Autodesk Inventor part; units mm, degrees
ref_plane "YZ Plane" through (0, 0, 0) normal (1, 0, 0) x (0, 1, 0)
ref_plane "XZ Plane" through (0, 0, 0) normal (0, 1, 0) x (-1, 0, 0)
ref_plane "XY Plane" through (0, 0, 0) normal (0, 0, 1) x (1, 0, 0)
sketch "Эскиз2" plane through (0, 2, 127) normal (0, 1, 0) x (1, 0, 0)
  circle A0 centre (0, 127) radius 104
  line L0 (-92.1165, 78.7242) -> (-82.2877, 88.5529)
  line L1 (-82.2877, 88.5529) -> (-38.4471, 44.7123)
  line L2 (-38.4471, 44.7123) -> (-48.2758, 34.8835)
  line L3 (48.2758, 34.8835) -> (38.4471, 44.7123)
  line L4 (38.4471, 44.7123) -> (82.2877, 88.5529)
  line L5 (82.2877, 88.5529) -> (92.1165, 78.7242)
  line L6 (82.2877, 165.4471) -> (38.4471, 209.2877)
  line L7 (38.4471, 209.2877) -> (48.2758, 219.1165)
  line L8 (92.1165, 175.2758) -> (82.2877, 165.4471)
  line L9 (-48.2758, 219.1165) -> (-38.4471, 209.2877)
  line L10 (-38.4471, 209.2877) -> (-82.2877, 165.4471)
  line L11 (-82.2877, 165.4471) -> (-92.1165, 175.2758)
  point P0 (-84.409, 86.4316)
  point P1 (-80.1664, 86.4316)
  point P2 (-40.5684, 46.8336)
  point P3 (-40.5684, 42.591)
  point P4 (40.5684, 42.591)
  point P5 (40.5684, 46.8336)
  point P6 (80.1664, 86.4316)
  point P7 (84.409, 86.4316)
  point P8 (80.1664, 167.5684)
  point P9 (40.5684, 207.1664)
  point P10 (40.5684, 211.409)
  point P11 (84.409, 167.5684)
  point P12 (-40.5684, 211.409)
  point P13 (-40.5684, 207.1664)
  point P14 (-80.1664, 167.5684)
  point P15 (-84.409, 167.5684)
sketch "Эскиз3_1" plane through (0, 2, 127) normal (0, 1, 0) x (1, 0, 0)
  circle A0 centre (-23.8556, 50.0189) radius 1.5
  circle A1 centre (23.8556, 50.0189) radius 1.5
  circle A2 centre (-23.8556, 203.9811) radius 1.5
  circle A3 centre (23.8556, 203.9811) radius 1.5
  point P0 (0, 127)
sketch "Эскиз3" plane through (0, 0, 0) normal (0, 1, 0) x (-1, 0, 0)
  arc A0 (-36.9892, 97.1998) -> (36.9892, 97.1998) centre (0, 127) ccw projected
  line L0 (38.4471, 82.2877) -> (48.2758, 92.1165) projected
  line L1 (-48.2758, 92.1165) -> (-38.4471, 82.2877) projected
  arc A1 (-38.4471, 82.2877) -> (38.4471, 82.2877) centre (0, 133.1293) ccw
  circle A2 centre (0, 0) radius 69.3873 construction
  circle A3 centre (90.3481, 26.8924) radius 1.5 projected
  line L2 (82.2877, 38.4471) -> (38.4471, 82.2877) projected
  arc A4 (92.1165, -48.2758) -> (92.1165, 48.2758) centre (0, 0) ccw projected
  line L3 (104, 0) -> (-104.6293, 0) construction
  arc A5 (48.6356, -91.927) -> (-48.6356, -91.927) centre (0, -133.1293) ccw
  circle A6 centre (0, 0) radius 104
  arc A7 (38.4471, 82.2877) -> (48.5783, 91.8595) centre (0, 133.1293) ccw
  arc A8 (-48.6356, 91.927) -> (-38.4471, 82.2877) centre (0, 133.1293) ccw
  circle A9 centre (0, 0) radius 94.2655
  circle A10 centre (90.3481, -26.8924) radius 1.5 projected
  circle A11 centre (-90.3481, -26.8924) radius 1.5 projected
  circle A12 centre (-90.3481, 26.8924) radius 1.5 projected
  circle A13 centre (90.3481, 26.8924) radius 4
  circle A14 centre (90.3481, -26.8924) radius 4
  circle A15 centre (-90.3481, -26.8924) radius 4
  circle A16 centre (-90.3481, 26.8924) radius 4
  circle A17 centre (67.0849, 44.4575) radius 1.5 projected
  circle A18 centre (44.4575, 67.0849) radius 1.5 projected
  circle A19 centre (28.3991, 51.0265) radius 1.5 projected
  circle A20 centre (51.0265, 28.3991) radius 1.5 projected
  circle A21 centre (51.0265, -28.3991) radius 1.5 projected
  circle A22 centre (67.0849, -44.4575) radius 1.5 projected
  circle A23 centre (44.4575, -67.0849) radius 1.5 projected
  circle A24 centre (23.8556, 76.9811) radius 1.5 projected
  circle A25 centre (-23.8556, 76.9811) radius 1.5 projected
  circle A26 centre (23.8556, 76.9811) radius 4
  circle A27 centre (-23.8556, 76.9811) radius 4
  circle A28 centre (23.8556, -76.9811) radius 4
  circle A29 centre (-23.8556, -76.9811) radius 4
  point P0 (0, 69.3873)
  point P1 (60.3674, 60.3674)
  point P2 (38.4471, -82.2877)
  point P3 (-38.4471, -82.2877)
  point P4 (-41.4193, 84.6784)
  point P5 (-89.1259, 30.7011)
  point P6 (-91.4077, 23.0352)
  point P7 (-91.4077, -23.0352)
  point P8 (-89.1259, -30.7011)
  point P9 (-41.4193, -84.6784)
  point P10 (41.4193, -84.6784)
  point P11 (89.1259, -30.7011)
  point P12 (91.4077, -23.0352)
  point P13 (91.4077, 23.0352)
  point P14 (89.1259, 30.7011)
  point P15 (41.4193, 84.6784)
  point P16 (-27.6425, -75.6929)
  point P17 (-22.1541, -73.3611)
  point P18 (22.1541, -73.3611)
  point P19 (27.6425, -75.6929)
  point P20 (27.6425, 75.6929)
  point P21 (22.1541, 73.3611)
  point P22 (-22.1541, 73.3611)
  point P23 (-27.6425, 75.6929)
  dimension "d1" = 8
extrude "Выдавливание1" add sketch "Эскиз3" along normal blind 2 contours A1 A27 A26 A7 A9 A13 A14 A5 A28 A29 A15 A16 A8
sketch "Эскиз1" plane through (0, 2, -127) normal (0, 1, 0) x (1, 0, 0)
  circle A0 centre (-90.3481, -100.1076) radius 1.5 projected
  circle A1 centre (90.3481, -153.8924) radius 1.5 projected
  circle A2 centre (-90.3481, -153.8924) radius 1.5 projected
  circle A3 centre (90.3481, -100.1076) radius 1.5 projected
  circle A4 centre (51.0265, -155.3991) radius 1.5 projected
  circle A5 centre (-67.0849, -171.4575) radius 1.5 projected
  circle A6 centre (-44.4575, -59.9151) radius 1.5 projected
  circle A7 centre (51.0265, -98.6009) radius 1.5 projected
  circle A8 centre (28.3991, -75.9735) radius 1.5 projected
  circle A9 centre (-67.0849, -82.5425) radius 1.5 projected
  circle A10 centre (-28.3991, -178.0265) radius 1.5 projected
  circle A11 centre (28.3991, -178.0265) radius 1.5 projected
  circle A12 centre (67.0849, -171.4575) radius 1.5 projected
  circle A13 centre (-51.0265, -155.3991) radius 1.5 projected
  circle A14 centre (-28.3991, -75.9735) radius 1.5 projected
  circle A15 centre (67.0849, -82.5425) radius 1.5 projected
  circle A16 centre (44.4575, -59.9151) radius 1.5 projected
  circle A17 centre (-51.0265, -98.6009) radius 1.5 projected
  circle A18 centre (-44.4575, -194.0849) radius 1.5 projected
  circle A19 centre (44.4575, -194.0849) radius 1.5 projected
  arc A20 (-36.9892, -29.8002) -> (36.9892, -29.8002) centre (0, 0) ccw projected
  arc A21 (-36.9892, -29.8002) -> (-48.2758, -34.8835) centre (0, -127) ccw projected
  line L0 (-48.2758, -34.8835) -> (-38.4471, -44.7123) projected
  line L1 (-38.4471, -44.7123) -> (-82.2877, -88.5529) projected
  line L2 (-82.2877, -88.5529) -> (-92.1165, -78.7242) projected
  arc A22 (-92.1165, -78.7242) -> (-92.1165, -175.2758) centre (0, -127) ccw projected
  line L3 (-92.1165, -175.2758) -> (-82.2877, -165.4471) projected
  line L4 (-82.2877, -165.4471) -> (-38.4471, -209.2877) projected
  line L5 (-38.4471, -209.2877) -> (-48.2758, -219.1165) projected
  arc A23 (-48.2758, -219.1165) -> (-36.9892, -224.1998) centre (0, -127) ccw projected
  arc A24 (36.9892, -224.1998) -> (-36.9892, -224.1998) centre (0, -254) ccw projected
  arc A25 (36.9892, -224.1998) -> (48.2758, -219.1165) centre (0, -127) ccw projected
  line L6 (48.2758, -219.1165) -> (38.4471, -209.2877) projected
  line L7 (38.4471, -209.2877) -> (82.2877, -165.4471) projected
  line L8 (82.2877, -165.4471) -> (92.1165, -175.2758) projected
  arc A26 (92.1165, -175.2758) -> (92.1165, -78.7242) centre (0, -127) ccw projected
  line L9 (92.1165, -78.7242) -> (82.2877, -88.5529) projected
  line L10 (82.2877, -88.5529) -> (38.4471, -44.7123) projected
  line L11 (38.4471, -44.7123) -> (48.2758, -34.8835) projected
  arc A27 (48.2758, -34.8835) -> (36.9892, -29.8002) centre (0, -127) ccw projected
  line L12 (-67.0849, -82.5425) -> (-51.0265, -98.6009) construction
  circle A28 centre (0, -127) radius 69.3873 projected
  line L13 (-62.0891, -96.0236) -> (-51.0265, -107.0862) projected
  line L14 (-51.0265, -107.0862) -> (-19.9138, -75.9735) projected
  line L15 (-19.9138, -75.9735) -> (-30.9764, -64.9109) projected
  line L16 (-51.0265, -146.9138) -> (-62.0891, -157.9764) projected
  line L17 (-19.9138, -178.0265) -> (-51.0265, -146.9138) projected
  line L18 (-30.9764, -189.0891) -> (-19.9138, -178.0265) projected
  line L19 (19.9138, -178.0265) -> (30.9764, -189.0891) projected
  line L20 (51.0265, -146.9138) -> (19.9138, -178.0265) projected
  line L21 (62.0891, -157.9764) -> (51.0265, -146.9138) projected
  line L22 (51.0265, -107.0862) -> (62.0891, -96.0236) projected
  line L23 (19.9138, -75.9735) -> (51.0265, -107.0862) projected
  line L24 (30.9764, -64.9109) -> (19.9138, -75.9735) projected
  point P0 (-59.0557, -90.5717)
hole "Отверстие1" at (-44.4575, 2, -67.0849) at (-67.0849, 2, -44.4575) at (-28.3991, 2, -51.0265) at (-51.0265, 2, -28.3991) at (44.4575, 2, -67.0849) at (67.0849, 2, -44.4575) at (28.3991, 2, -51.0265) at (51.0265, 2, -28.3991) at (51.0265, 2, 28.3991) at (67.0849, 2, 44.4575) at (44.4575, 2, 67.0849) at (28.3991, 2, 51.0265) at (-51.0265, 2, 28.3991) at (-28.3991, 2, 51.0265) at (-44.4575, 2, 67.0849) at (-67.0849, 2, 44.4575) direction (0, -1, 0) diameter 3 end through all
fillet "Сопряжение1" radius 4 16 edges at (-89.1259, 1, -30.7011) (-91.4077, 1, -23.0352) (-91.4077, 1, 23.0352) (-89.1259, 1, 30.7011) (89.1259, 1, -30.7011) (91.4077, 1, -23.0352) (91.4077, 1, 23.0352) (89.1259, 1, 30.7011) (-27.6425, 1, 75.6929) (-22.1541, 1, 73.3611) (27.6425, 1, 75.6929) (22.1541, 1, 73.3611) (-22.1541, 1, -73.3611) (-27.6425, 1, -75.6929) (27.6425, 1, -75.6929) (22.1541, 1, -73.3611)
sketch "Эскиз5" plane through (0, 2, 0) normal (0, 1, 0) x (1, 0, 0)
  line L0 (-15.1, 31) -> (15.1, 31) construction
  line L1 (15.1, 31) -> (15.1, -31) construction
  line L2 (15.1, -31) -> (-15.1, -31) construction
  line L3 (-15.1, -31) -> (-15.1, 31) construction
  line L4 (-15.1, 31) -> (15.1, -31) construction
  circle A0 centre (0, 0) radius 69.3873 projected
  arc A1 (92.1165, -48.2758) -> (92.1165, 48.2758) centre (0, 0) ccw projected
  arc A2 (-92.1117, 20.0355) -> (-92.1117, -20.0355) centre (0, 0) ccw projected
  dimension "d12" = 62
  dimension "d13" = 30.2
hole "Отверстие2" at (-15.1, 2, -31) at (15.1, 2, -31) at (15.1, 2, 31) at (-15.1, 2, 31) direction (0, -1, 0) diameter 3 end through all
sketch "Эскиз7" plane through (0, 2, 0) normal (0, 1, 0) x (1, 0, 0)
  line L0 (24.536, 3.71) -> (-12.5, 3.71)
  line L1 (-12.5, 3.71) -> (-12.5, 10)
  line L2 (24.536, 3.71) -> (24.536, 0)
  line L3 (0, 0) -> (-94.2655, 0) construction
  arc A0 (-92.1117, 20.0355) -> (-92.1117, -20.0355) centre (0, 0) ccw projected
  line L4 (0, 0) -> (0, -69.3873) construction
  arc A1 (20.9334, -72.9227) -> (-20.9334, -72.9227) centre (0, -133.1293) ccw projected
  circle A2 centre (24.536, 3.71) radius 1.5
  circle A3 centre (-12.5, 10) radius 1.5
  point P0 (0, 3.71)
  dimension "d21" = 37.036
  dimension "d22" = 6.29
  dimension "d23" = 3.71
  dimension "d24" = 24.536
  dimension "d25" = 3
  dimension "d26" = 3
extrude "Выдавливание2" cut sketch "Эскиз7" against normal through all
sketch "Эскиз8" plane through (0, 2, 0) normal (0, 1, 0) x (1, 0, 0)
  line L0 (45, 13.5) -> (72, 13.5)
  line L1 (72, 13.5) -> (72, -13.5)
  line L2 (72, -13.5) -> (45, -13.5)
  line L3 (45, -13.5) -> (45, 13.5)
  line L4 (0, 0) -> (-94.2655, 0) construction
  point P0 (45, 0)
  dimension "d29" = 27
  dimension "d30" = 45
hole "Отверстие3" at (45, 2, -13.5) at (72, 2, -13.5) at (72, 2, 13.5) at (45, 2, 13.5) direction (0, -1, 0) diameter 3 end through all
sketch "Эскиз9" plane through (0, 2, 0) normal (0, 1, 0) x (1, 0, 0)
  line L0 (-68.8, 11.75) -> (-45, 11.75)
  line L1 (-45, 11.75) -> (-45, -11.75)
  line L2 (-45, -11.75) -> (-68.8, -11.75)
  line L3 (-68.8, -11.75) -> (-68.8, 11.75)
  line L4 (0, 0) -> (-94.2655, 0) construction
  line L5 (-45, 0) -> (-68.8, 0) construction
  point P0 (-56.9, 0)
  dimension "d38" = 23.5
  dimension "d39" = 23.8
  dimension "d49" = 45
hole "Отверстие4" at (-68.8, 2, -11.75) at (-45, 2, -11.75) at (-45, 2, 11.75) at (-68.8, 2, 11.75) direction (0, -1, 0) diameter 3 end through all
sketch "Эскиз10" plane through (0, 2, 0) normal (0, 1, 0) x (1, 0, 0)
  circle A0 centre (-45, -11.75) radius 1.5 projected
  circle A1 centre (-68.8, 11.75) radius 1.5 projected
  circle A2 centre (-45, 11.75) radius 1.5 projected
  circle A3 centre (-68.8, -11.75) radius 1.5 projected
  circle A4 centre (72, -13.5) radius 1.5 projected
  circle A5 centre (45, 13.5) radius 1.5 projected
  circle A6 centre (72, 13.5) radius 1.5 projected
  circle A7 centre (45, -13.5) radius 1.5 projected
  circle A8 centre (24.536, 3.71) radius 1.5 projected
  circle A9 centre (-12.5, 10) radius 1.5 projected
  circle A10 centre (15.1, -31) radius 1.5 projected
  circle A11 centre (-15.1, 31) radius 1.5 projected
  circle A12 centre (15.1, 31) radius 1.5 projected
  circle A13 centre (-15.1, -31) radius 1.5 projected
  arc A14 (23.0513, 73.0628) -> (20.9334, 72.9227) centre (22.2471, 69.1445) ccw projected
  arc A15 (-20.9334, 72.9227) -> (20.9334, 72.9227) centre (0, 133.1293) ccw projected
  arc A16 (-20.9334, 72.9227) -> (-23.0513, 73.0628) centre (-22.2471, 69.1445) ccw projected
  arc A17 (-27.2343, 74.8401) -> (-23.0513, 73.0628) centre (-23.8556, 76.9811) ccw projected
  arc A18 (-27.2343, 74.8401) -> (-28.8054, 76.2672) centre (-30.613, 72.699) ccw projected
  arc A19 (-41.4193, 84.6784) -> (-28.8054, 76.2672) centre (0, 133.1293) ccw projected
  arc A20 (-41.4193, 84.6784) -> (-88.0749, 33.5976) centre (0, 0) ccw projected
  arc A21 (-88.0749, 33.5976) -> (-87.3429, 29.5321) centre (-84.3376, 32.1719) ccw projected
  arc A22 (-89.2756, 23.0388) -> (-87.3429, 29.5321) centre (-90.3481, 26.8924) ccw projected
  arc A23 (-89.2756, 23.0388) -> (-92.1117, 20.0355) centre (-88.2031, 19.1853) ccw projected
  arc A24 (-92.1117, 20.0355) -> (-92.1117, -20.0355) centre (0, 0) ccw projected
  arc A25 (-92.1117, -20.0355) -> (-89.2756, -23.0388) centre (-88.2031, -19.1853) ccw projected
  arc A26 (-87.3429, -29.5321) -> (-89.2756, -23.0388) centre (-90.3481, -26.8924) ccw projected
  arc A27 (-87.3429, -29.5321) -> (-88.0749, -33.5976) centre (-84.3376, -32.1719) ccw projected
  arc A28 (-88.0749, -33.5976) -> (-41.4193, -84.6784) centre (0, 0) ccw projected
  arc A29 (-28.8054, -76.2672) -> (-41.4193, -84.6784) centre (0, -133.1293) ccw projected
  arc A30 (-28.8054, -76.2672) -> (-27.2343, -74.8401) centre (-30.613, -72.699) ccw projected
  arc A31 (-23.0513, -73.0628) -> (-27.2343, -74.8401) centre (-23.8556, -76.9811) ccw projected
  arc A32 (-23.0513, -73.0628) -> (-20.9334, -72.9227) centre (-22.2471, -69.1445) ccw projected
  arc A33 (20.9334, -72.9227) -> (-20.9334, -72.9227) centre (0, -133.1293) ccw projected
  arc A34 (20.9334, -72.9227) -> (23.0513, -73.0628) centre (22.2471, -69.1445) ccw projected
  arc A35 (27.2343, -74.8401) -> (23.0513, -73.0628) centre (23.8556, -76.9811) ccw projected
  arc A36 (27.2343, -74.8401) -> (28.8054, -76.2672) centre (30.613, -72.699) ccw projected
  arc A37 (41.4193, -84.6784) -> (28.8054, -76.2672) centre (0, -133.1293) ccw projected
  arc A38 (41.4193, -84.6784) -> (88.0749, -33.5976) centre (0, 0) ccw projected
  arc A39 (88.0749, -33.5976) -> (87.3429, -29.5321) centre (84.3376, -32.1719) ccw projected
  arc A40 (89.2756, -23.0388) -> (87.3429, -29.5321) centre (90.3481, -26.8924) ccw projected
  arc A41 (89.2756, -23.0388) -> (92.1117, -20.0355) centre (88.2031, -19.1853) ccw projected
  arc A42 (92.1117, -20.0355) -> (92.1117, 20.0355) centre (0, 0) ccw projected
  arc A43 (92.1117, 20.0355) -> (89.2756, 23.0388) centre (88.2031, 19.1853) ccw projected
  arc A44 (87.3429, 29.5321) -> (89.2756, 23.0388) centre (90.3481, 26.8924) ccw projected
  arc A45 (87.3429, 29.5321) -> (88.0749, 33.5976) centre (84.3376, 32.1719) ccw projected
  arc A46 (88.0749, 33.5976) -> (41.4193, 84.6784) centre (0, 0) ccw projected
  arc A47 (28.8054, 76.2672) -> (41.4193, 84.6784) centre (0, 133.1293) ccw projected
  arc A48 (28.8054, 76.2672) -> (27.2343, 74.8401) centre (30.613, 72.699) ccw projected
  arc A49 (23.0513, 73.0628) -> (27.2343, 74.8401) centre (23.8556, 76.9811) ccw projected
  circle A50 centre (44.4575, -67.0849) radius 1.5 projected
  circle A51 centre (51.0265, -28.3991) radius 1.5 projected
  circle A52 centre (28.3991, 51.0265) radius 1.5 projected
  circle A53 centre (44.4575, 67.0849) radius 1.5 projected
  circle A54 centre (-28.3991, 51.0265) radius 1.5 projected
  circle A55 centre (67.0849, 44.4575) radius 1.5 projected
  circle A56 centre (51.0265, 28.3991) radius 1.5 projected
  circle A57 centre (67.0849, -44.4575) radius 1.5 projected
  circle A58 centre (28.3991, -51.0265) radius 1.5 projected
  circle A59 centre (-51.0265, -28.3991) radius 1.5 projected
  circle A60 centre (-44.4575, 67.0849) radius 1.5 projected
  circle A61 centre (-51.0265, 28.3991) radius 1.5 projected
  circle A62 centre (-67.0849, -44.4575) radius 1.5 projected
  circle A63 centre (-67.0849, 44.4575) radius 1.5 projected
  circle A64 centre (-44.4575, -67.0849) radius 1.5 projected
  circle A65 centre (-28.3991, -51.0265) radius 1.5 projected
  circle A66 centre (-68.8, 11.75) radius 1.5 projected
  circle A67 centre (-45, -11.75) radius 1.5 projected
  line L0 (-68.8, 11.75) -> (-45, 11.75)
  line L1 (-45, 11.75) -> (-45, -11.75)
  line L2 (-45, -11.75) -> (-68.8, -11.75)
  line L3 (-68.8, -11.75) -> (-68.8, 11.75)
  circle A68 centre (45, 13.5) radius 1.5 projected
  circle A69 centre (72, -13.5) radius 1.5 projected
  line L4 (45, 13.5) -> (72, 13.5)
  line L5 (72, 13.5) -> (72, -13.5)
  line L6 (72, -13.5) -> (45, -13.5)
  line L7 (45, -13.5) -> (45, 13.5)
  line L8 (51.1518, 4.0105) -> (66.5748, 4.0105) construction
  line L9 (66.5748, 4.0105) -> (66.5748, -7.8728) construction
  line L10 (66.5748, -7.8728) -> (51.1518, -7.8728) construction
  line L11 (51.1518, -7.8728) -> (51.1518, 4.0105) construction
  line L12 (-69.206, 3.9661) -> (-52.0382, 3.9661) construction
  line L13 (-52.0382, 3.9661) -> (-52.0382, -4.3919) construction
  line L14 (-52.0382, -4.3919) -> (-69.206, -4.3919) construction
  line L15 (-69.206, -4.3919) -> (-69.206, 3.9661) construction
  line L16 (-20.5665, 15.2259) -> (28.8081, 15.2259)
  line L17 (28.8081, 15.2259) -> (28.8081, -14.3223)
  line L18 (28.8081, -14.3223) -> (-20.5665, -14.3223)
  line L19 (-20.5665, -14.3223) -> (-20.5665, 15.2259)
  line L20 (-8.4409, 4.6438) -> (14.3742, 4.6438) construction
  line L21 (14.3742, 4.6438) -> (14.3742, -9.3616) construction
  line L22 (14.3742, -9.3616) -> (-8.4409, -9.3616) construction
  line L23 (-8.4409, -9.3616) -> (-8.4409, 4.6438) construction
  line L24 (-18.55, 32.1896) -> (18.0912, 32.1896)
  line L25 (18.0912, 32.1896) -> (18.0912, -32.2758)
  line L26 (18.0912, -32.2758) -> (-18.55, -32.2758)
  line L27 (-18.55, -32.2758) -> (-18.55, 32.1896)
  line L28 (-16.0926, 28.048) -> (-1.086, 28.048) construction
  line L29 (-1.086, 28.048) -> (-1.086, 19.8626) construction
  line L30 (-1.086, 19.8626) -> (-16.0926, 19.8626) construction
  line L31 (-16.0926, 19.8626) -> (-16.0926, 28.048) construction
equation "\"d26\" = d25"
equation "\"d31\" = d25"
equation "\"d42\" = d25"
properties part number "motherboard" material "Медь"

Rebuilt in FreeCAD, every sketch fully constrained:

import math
import FreeCAD as App
import Part
import Sketcher

V = App.Vector
Q = App.Units.Quantity


def edges_at(feature, points):
    """Names of the edges that pass closest to the given points."""
    edges = feature.Shape.Edges
    near = lambda p: min(range(len(edges)), key=lambda i: edges[i].distToShape(Part.Vertex(*p))[0])
    return sorted({f"Edge{near(p) + 1}" for p in points})

doc = App.newDocument("Part")
params = doc.addObject("Spreadsheet::Sheet", "Params")
for row, (alias, value) in enumerate([
    ("sketch1_radius", "4 mm"),
    ("sketch1_diameter", "3 mm"),
    ("sketch1_radius2", "63.74 mm"),
    ("sketch1_height", "3.62 mm"),
    ("pad1_length", "2 mm"),
    ("sketch2_diameter", "3 mm"),
    ("hole_diameter", "3 mm"),
    ("fillet_radius", "4 mm"),
    ("sketch3_diameter", "3 mm"),
    ("hole2_diameter", "3 mm"),
    ("sketch4_diameter", "3 mm"),
    ("sketch5_diameter", "3 mm"),
    ("hole3_diameter", "3 mm"),
    ("sketch6_diameter", "3 mm"),
    ("hole4_diameter", "3 mm"),
], start=1):
    params.set(f"A{row}", alias)
    params.set(f"B{row}", "=" + value)
    params.setAlias(f"B{row}", alias)

body = doc.addObject("PartDesign::Body", "Body")

sketch1 = body.newObject("Sketcher::SketchObject", "Sketch")
sketch1.AttachmentSupport = (doc.getObject("XZ_Plane"), [""])
sketch1.MapMode = "FlatFace"
sketch1.addGeometry(Part.ArcOfCircle(Part.Circle(V(0, 133.1293, 0), V(0, 0, 1), 63.742041), math.radians(-64.299827), math.radians(-52.902939)), False)
sketch1.addGeometry(Part.ArcOfCircle(Part.Circle(V(0.001562, 133.127822, 0), V(0, 0, 1), 63.73992), math.radians(-52.903258), math.radians(-49.474032)), False)
sketch1.addGeometry(Part.ArcOfCircle(Part.Circle(V(0, 0, 0), V(0, 0, 1), 94.2655), math.radians(19.007239), math.radians(63.935051)), False)
sketch1.addGeometry(Part.ArcOfCircle(Part.Circle(V(90.3481, 26.8924, 0), V(0, 0, 1), 4), math.radians(107.791207), math.radians(285.360402)), False)
sketch1.addGeometry(Part.ArcOfCircle(Part.Circle(V(0, 0, 0), V(0, 0, 1), 94.2655), math.radians(-14.144371), math.radians(14.144371)), False)
sketch1.addGeometry(Part.ArcOfCircle(Part.Circle(V(90.3481, -26.8924, 0), V(0, 0, 1), 4), math.radians(74.639598), math.radians(252.208793)), False)
sketch1.addGeometry(Part.ArcOfCircle(Part.Circle(V(0, 0, 0), V(0, 0, 1), 94.2655), math.radians(-63.935045), math.radians(-19.007239)), False)
sketch1.addGeometry(Part.ArcOfCircle(Part.Circle(V(0, -133.1293, 0), V(0, 0, 1), 63.742067), math.radians(49.473825), math.radians(64.29985)), False)
sketch1.addGeometry(Part.ArcOfCircle(Part.Circle(V(23.8556, -76.9811, 0), V(0, 0, 1), 4), math.radians(18.787541), math.radians(115.174242)), False)
sketch1.addGeometry(Part.ArcOfCircle(Part.Circle(V(0, -133.1293, 0), V(0, 0, 1), 63.742067), math.radians(69.661933), math.radians(110.338067)), False)
sketch1.addGeometry(Part.ArcOfCircle(Part.Circle(V(-23.8556, -76.9811, 0), V(0, 0, 1), 4), math.radians(64.825758), math.radians(161.212459)), False)
sketch1.addGeometry(Part.ArcOfCircle(Part.Circle(V(0, -133.1293, 0), V(0, 0, 1), 63.742067), math.radians(115.70015), math.radians(130.526175)), False)
sketch1.addGeometry(Part.ArcOfCircle(Part.Circle(V(0, 0, 0), V(0, 0, 1), 94.2655), math.radians(-160.992761), math.radians(-116.064955)), False)
sketch1.addGeometry(Part.ArcOfCircle(Part.Circle(V(-90.3481, -26.8924, 0), V(0, 0, 1), 4), math.radians(-72.208793), math.radians(105.360402)), False)
sketch1.addGeometry(Part.ArcOfCircle(Part.Circle(V(0, 0, 0), V(0, 0, 1), 94.2655), math.radians(165.855629), math.radians(194.144371)), False)
sketch1.addGeometry(Part.ArcOfCircle(Part.Circle(V(-90.3481, 26.8924, 0), V(0, 0, 1), 4), math.radians(-105.360402), math.radians(72.208793)), False)
sketch1.addGeometry(Part.ArcOfCircle(Part.Circle(V(0, 0, 0), V(0, 0, 1), 94.2655), math.radians(116.064937), math.radians(160.992761)), False)
sketch1.addGeometry(Part.ArcOfCircle(Part.Circle(V(0, 133.1293, 0), V(0, 0, 1), 63.742041), math.radians(-130.526165), math.radians(-127.097061)), False)
sketch1.addGeometry(Part.ArcOfCircle(Part.Circle(V(0, 133.1293, 0), V(0, 0, 1), 63.742041), math.radians(-127.097061), math.radians(-115.700173)), False)
sketch1.addGeometry(Part.ArcOfCircle(Part.Circle(V(-23.8556, 76.9811, 0), V(0, 0, 1), 4), math.radians(-161.212983), math.radians(-64.825235)), False)
sketch1.addGeometry(Part.ArcOfCircle(Part.Circle(V(0, 133.1293, 0), V(0, 0, 1), 63.742041), math.radians(-110.338044), math.radians(-69.661956)), False)
sketch1.addGeometry(Part.ArcOfCircle(Part.Circle(V(23.8556, 76.9811, 0), V(0, 0, 1), 4), math.radians(-115.174765), math.radians(-18.787017)), False)
sketch1.addGeometry(Part.Circle(V(-44.4575, -67.0849, 0), V(0, 0, 1), 1.5), False)
sketch1.addGeometry(Part.Circle(V(-51.0265, -28.3991, 0), V(0, 0, 1), 1.5), False)
sketch1.addGeometry(Part.Circle(V(-67.0849, -44.4575, 0), V(0, 0, 1), 1.5), False)
sketch1.addGeometry(Part.Circle(V(-51.0265, 28.3991, 0), V(0, 0, 1), 1.5), False)
sketch1.addGeometry(Part.Circle(V(-28.3991, 51.0265, 0), V(0, 0, 1), 1.5), False)
sketch1.addGeometry(Part.Circle(V(-67.0849, 44.4575, 0), V(0, 0, 1), 1.5), False)
sketch1.addGeometry(Part.Circle(V(-44.4575, 67.0849, 0), V(0, 0, 1), 1.5), False)
sketch1.addConstraint(Sketcher.Constraint("Tangent", 0, 2, 1, 1))
sketch1.addConstraint(Sketcher.Constraint("Coincident", 1, 2, 2, 2))
sketch1.addConstraint(Sketcher.Constraint("Coincident", 2, 1, 3, 1))
sketch1.addConstraint(Sketcher.Constraint("Coincident", 3, 2, 4, 2))
sketch1.addConstraint(Sketcher.Constraint("Coincident", 4, 1, 5, 1))
sketch1.addConstraint(Sketcher.Constraint("Coincident", 5, 2, 6, 2))
sketch1.addConstraint(Sketcher.Constraint("Coincident", 6, 1, 7, 1))
sketch1.addConstraint(Sketcher.Constraint("Coincident", 7, 2, 8, 1))
sketch1.addConstraint(Sketcher.Constraint("Coincident", 8, 2, 9, 1))
sketch1.addConstraint(Sketcher.Constraint("Coincident", 9, 2, 10, 1))
sketch1.addConstraint(Sketcher.Constraint("Coincident", 10, 2, 11, 1))
sketch1.addConstraint(Sketcher.Constraint("Coincident", 11, 2, 12, 2))
sketch1.addConstraint(Sketcher.Constraint("Coincident", 12, 1, 13, 1))
sketch1.addConstraint(Sketcher.Constraint("Coincident", 13, 2, 14, 2))
sketch1.addConstraint(Sketcher.Constraint("Coincident", 14, 1, 15, 1))
sketch1.addConstraint(Sketcher.Constraint("Coincident", 15, 2, 16, 2))
sketch1.addConstraint(Sketcher.Constraint("Coincident", 16, 1, 17, 1))
sketch1.addConstraint(Sketcher.Constraint("Tangent", 17, 2, 18, 1))
sketch1.addConstraint(Sketcher.Constraint("Coincident", 18, 2, 19, 1))
sketch1.addConstraint(Sketcher.Constraint("Coincident", 19, 2, 20, 1))
sketch1.addConstraint(Sketcher.Constraint("Coincident", 20, 2, 21, 1))
sketch1.addConstraint(Sketcher.Constraint("Coincident", 21, 2, 0, 1))
sketch1.addConstraint(Sketcher.Constraint("Coincident", 2, 3, -1, 1))
sketch1.addConstraint(Sketcher.Constraint("Coincident", 4, 3, -1, 1))
sketch1.addConstraint(Sketcher.Constraint("Coincident", 6, 3, -1, 1))
sketch1.addConstraint(Sketcher.Constraint("Coincident", 12, 3, -1, 1))
sketch1.addConstraint(Sketcher.Constraint("Coincident", 14, 3, -1, 1))
sketch1.addConstraint(Sketcher.Constraint("Coincident", 16, 3, -1, 1))
sketch1.addConstraint(Sketcher.Constraint("Coincident", 9, 3, 7, 3))
sketch1.addConstraint(Sketcher.Constraint("Coincident", 11, 3, 7, 3))
sketch1.addConstraint(Sketcher.Constraint("Coincident", 17, 3, 0, 3))
sketch1.addConstraint(Sketcher.Constraint("Coincident", 20, 3, 0, 3))
sketch1.addConstraint(Sketcher.Constraint("Equal", 2, 4))
sketch1.addConstraint(Sketcher.Constraint("Equal", 3, 5))
sketch1.addConstraint(Sketcher.Constraint("Equal", 4, 6))
sketch1.addConstraint(Sketcher.Constraint("Equal", 0, 7))
sketch1.addConstraint(Sketcher.Constraint("Equal", 5, 8))
sketch1.addConstraint(Sketcher.Constraint("Equal", 7, 9))
sketch1.addConstraint(Sketcher.Constraint("Equal", 8, 10))
sketch1.addConstraint(Sketcher.Constraint("Equal", 9, 11))
sketch1.addConstraint(Sketcher.Constraint("Equal", 6, 12))
sketch1.addConstraint(Sketcher.Constraint("Equal", 10, 13))
sketch1.addConstraint(Sketcher.Constraint("Equal", 12, 14))
sketch1.addConstraint(Sketcher.Constraint("Equal", 13, 15))
sketch1.addConstraint(Sketcher.Constraint("Equal", 14, 16))
sketch1.addConstraint(Sketcher.Constraint("Equal", 11, 17))
sketch1.addConstraint(Sketcher.Constraint("Equal", 17, 18))
sketch1.addConstraint(Sketcher.Constraint("Equal", 15, 19))
sketch1.addConstraint(Sketcher.Constraint("Equal", 18, 20))
sketch1.addConstraint(Sketcher.Constraint("Equal", 19, 21))
sketch1.addConstraint(Sketcher.Constraint("Equal", 22, 23))
sketch1.addConstraint(Sketcher.Constraint("Equal", 23, 24))
sketch1.addConstraint(Sketcher.Constraint("Equal", 24, 25))
sketch1.addConstraint(Sketcher.Constraint("Equal", 25, 26))
sketch1.addConstraint(Sketcher.Constraint("Equal", 26, 27))
sketch1.addConstraint(Sketcher.Constraint("Equal", 27, 28))
sketch1.addConstraint(Sketcher.Constraint("Symmetric", 0, 3, 7, 3, -1, 1))
sketch1.addConstraint(Sketcher.Constraint("Symmetric", 3, 3, 13, 3, -1, 1))
sketch1.addConstraint(Sketcher.Constraint("Symmetric", 5, 3, 15, 3, -1, 1))
sketch1.addConstraint(Sketcher.Constraint("Symmetric", 8, 3, 19, 3, -1, 1))
sketch1.addConstraint(Sketcher.Constraint("Symmetric", 10, 3, 21, 3, -1, 1))
sketch1.addConstraint(Sketcher.Constraint("Symmetric", 8, 3, 10, 3, -2))
sketch1.addConstraint(Sketcher.Constraint("Symmetric", 5, 3, 13, 3, -2))
sketch1.addConstraint(Sketcher.Constraint("Symmetric", 0, 2, 17, 2, -2))
sketch1.addConstraint(Sketcher.Constraint("Symmetric", 23, 3, 25, 3, -1))
sketch1.addConstraint(Sketcher.Constraint("Symmetric", 24, 3, 27, 3, -1))
sketch1.addConstraint(Sketcher.Constraint("Symmetric", 22, 3, 28, 3, -1))
sketch1.addConstraint(Sketcher.Constraint("Radius", 3, Q("4 mm")))
sketch1.addConstraint(Sketcher.Constraint("Diameter", 22, Q("3 mm")))
sketch1.addConstraint(Sketcher.Constraint("Radius", 1, Q("63.74 mm")))
sketch1.addConstraint(Sketcher.Constraint("Radius", 0, Q("63.742 mm")))
sketch1.addConstraint(Sketcher.Constraint("Radius", 2, Q("94.2655 mm")))
sketch1.addConstraint(Sketcher.Constraint("DistanceY", 24, 3, 15, 3, Q("71.35 mm")))
sketch1.addConstraint(Sketcher.Constraint("DistanceY", 2, 1, 21, 3, Q("46.28 mm")))
sketch1.addConstraint(Sketcher.Constraint("DistanceY", 8, 3, 8, 2, Q("3.62 mm")))
sketch1.addConstraint(Sketcher.Constraint("DistanceX", -1, 1, 3, 3, Q("90.348 mm")))
sketch1.addConstraint(Sketcher.Constraint("DistanceY", 8, 3, -1, 1, Q("76.981 mm")))
sketch1.addConstraint(Sketcher.Constraint("DistanceY", 22, 3, -1, 1, Q("67.085 mm")))
sketch1.addConstraint(Sketcher.Constraint("DistanceY", 23, 3, -1, 1, Q("28.399 mm")))
sketch1.addConstraint(Sketcher.Constraint("DistanceX", 24, 3, -1, 1, Q("67.085 mm")))
sketch1.addConstraint(Sketcher.Constraint("DistanceX", 26, 3, -1, 1, Q("28.399 mm")))
sketch1.addConstraint(Sketcher.Constraint("DistanceX", -1, 1, 0, 2, Q("38.447 mm")))
sketch1.addConstraint(Sketcher.Constraint("DistanceX", -1, 1, 8, 2, Q("22.154 mm")))
sketch1.addConstraint(Sketcher.Constraint("DistanceX", 22, 3, 10, 3, Q("20.602 mm")))
sketch1.addConstraint(Sketcher.Constraint("DistanceX", 23, 3, 22, 3, Q("6.569 mm")))
sketch1.addConstraint(Sketcher.Constraint("DistanceY", 27, 3, 26, 3, Q("6.569 mm")))
sketch1.setExpression("Constraints[67]", "Params.sketch1_radius")
sketch1.setExpression("Constraints[68]", "Params.sketch1_diameter")
sketch1.setExpression("Constraints[69]", "Params.sketch1_radius2")
sketch1.setExpression("Constraints[74]", "Params.sketch1_height")
pad1 = body.newObject("PartDesign::Pad", "Pad")
pad1.Profile = sketch1
pad1.setExpression("Length", "Params.pad1_length")
pad1.Reversed = True

sketch2 = body.newObject("Sketcher::SketchObject", "Sketch001")
sketch2.AttachmentSupport = (doc.getObject("XZ_Plane"), [""])
sketch2.MapMode = "FlatFace"
sketch2.AttachmentOffset = App.Placement(V(0, 0, -2), App.Rotation())
sketch2.addGeometry(Part.Circle(V(-44.4575, -67.0849, 0), V(0, 0, 1), 1.5), False)
sketch2.addGeometry(Part.Circle(V(-67.0849, -44.4575, 0), V(0, 0, 1), 1.5), False)
sketch2.addGeometry(Part.Circle(V(-28.3991, -51.0265, 0), V(0, 0, 1), 1.5), False)
sketch2.addGeometry(Part.Circle(V(-51.0265, -28.3991, 0), V(0, 0, 1), 1.5), False)
sketch2.addGeometry(Part.Circle(V(44.4575, -67.0849, 0), V(0, 0, 1), 1.5), False)
sketch2.addGeometry(Part.Circle(V(67.0849, -44.4575, 0), V(0, 0, 1), 1.5), False)
sketch2.addGeometry(Part.Circle(V(28.3991, -51.0265, 0), V(0, 0, 1), 1.5), False)
sketch2.addGeometry(Part.Circle(V(51.0265, -28.3991, 0), V(0, 0, 1), 1.5), False)
sketch2.addGeometry(Part.Circle(V(51.0265, 28.3991, 0), V(0, 0, 1), 1.5), False)
sketch2.addGeometry(Part.Circle(V(67.0849, 44.4575, 0), V(0, 0, 1), 1.5), False)
sketch2.addGeometry(Part.Circle(V(44.4575, 67.0849, 0), V(0, 0, 1), 1.5), False)
sketch2.addGeometry(Part.Circle(V(28.3991, 51.0265, 0), V(0, 0, 1), 1.5), False)
sketch2.addGeometry(Part.Circle(V(-51.0265, 28.3991, 0), V(0, 0, 1), 1.5), False)
sketch2.addGeometry(Part.Circle(V(-28.3991, 51.0265, 0), V(0, 0, 1), 1.5), False)
sketch2.addGeometry(Part.Circle(V(-44.4575, 67.0849, 0), V(0, 0, 1), 1.5), False)
sketch2.addGeometry(Part.Circle(V(-67.0849, 44.4575, 0), V(0, 0, 1), 1.5), False)
sketch2.addConstraint(Sketcher.Constraint("Equal", 0, 1))
sketch2.addConstraint(Sketcher.Constraint("Equal", 1, 2))
sketch2.addConstraint(Sketcher.Constraint("Equal", 2, 3))
sketch2.addConstraint(Sketcher.Constraint("Equal", 3, 4))
sketch2.addConstraint(Sketcher.Constraint("Equal", 4, 5))
sketch2.addConstraint(Sketcher.Constraint("Equal", 5, 6))
sketch2.addConstraint(Sketcher.Constraint("Equal", 6, 7))
sketch2.addConstraint(Sketcher.Constraint("Equal", 7, 8))
sketch2.addConstraint(Sketcher.Constraint("Equal", 8, 9))
sketch2.addConstraint(Sketcher.Constraint("Equal", 9, 10))
sketch2.addConstraint(Sketcher.Constraint("Equal", 10, 11))
sketch2.addConstraint(Sketcher.Constraint("Equal", 11, 12))
sketch2.addConstraint(Sketcher.Constraint("Equal", 12, 13))
sketch2.addConstraint(Sketcher.Constraint("Equal", 13, 14))
sketch2.addConstraint(Sketcher.Constraint("Equal", 14, 15))
sketch2.addConstraint(Sketcher.Constraint("Symmetric", 3, 3, 8, 3, -1, 1))
sketch2.addConstraint(Sketcher.Constraint("Symmetric", 1, 3, 9, 3, -1, 1))
sketch2.addConstraint(Sketcher.Constraint("Symmetric", 0, 3, 10, 3, -1, 1))
sketch2.addConstraint(Sketcher.Constraint("Symmetric", 2, 3, 11, 3, -1, 1))
sketch2.addConstraint(Sketcher.Constraint("Symmetric", 7, 3, 12, 3, -1, 1))
sketch2.addConstraint(Sketcher.Constraint("Symmetric", 6, 3, 13, 3, -1, 1))
sketch2.addConstraint(Sketcher.Constraint("Symmetric", 4, 3, 14, 3, -1, 1))
sketch2.addConstraint(Sketcher.Constraint("Symmetric", 5, 3, 15, 3, -1, 1))
sketch2.addConstraint(Sketcher.Constraint("Symmetric", 0, 3, 4, 3, -2))
sketch2.addConstraint(Sketcher.Constraint("Symmetric", 1, 3, 5, 3, -2))
sketch2.addConstraint(Sketcher.Constraint("Symmetric", 2, 3, 6, 3, -2))
sketch2.addConstraint(Sketcher.Constraint("Symmetric", 3, 3, 7, 3, -2))
sketch2.addConstraint(Sketcher.Constraint("Diameter", 0, Q("3 mm")))
sketch2.addConstraint(Sketcher.Constraint("DistanceY", 0, 3, -1, 1, Q("67.085 mm")))
sketch2.addConstraint(Sketcher.Constraint("DistanceX", 1, 3, -1, 1, Q("67.085 mm")))
sketch2.addConstraint(Sketcher.Constraint("DistanceX", 2, 3, -1, 1, Q("28.399 mm")))
sketch2.addConstraint(Sketcher.Constraint("DistanceY", 3, 3, -1, 1, Q("28.399 mm")))
sketch2.addConstraint(Sketcher.Constraint("DistanceY", 2, 3, 1, 3, Q("6.569 mm")))
sketch2.addConstraint(Sketcher.Constraint("DistanceX", 3, 3, 0, 3, Q("6.569 mm")))
sketch2.addConstraint(Sketcher.Constraint("DistanceX", 0, 3, 4, 3, Q("88.915 mm")))
sketch2.addConstraint(Sketcher.Constraint("DistanceY", 5, 3, 9, 3, Q("88.915 mm")))
sketch2.setExpression("Constraints[27]", "Params.sketch2_diameter")
doc.recompute()
hole = body.newObject("PartDesign::Hole", "Hole")
hole.Profile = sketch2
hole.ThreadType = "None"
hole.setExpression("Diameter", "Params.hole_diameter")
hole.DepthType = "ThroughAll"
hole.Reversed = True
doc.recompute()

fillet = body.newObject("PartDesign::Fillet", "Fillet")
fillet.Base = (hole, edges_at(hole, [
    (-89.126, 1, -30.701),
    (-91.408, 1, -23.035),
    (-91.408, 1, 23.035),
    (-89.126, 1, 30.701),
    (89.126, 1, -30.701),
    (91.408, 1, -23.035),
    (91.408, 1, 23.035),
    (89.126, 1, 30.701),
    (-27.642, 1, 75.693),
    (-22.154, 1, 73.361),
    (27.642, 1, 75.693),
    (22.154, 1, 73.361),
    (-22.154, 1, -73.361),
    (-27.642, 1, -75.693),
    (27.642, 1, -75.693),
    (22.154, 1, -73.361),
]))
fillet.setExpression("Radius", "Params.fillet_radius")

sketch3 = body.newObject("Sketcher::SketchObject", "Sketch002")
sketch3.AttachmentSupport = (doc.getObject("XZ_Plane"), [""])
sketch3.MapMode = "FlatFace"
sketch3.AttachmentOffset = App.Placement(V(0, 0, -2), App.Rotation())
sketch3.addGeometry(Part.Circle(V(-15.1, -31, 0), V(0, 0, 1), 1.5), False)
sketch3.addGeometry(Part.Circle(V(15.1, -31, 0), V(0, 0, 1), 1.5), False)
sketch3.addGeometry(Part.Circle(V(15.1, 31, 0), V(0, 0, 1), 1.5), False)
sketch3.addGeometry(Part.Circle(V(-15.1, 31, 0), V(0, 0, 1), 1.5), False)
sketch3.addConstraint(Sketcher.Constraint("Equal", 0, 1))
sketch3.addConstraint(Sketcher.Constraint("Equal", 1, 2))
sketch3.addConstraint(Sketcher.Constraint("Equal", 2, 3))
sketch3.addConstraint(Sketcher.Constraint("Symmetric", 0, 3, 2, 3, -1, 1))
sketch3.addConstraint(Sketcher.Constraint("Symmetric", 1, 3, 3, 3, -1, 1))
sketch3.addConstraint(Sketcher.Constraint("Symmetric", 0, 3, 1, 3, -2))
sketch3.addConstraint(Sketcher.Constraint("Diameter", 0, Q("3 mm")))
sketch3.addConstraint(Sketcher.Constraint("DistanceY", 0, 3, -1, 1, Q("31 mm")))
sketch3.addConstraint(Sketcher.Constraint("DistanceX", 0, 3, -1, 1, Q("15.1 mm")))
sketch3.setExpression("Constraints[6]", "Params.sketch3_diameter")
doc.recompute()
hole2 = body.newObject("PartDesign::Hole", "Hole001")
hole2.Profile = sketch3
hole2.ThreadType = "None"
hole2.setExpression("Diameter", "Params.hole2_diameter")
hole2.DepthType = "ThroughAll"
hole2.Reversed = True

sketch4 = body.newObject("Sketcher::SketchObject", "Sketch003")
sketch4.AttachmentSupport = (doc.getObject("XZ_Plane"), [""])
sketch4.MapMode = "FlatFace"
sketch4.AttachmentOffset = App.Placement(V(0, 0, -2), App.Rotation())
sketch4.addGeometry(Part.Circle(V(24.536, -3.71, 0), V(0, 0, 1), 1.5), False)
sketch4.addGeometry(Part.Circle(V(-12.5, -10, 0), V(0, 0, 1), 1.5), False)
sketch4.addConstraint(Sketcher.Constraint("Equal", 0, 1))
sketch4.addConstraint(Sketcher.Constraint("Diameter", 0, Q("3 mm")))
sketch4.addConstraint(Sketcher.Constraint("DistanceY", 0, 3, -1, 1, Q("3.71 mm")))
sketch4.addConstraint(Sketcher.Constraint("DistanceY", 1, 3, 0, 3, Q("6.29 mm")))
sketch4.addConstraint(Sketcher.Constraint("DistanceX", -1, 1, 0, 3, Q("24.536 mm")))
sketch4.addConstraint(Sketcher.Constraint("DistanceX", 1, 3, 0, 3, Q("37.036 mm")))
sketch4.setExpression("Constraints[1]", "Params.sketch4_diameter")
pocket1 = body.newObject("PartDesign::Pocket", "Pocket")
pocket1.Profile = sketch4
pocket1.Type = "ThroughAll"
pocket1.Reversed = True

sketch5 = body.newObject("Sketcher::SketchObject", "Sketch004")
sketch5.AttachmentSupport = (doc.getObject("XZ_Plane"), [""])
sketch5.MapMode = "FlatFace"
sketch5.AttachmentOffset = App.Placement(V(0, 0, -2), App.Rotation())
sketch5.addGeometry(Part.Circle(V(45, -13.5, 0), V(0, 0, 1), 1.5), False)
sketch5.addGeometry(Part.Circle(V(72, -13.5, 0), V(0, 0, 1), 1.5), False)
sketch5.addGeometry(Part.Circle(V(72, 13.5, 0), V(0, 0, 1), 1.5), False)
sketch5.addGeometry(Part.Circle(V(45, 13.5, 0), V(0, 0, 1), 1.5), False)
sketch5.addConstraint(Sketcher.Constraint("Equal", 0, 1))
sketch5.addConstraint(Sketcher.Constraint("Equal", 1, 2))
sketch5.addConstraint(Sketcher.Constraint("Equal", 2, 3))
sketch5.addConstraint(Sketcher.Constraint("Symmetric", 1, 3, 2, 3, -1))
sketch5.addConstraint(Sketcher.Constraint("Symmetric", 0, 3, 3, 3, -1))
sketch5.addConstraint(Sketcher.Constraint("Horizontal", 0, 3, 1, 3))
sketch5.addConstraint(Sketcher.Constraint("Diameter", 0, Q("3 mm")))
sketch5.addConstraint(Sketcher.Constraint("DistanceX", -1, 1, 0, 3, Q("45 mm")))
sketch5.addConstraint(Sketcher.Constraint("DistanceX", -1, 1, 1, 3, Q("72 mm")))
sketch5.addConstraint(Sketcher.Constraint("DistanceY", 1, 3, 2, 3, Q("27 mm")))
sketch5.setExpression("Constraints[6]", "Params.sketch5_diameter")
doc.recompute()
hole3 = body.newObject("PartDesign::Hole", "Hole002")
hole3.Profile = sketch5
hole3.ThreadType = "None"
hole3.setExpression("Diameter", "Params.hole3_diameter")
hole3.DepthType = "ThroughAll"
hole3.Reversed = True

sketch6 = body.newObject("Sketcher::SketchObject", "Sketch005")
sketch6.AttachmentSupport = (doc.getObject("XZ_Plane"), [""])
sketch6.MapMode = "FlatFace"
sketch6.AttachmentOffset = App.Placement(V(0, 0, -2), App.Rotation())
sketch6.addGeometry(Part.Circle(V(-68.8, -11.75, 0), V(0, 0, 1), 1.5), False)
sketch6.addGeometry(Part.Circle(V(-45, -11.75, 0), V(0, 0, 1), 1.5), False)
sketch6.addGeometry(Part.Circle(V(-45, 11.75, 0), V(0, 0, 1), 1.5), False)
sketch6.addGeometry(Part.Circle(V(-68.8, 11.75, 0), V(0, 0, 1), 1.5), False)
sketch6.addConstraint(Sketcher.Constraint("Equal", 0, 1))
sketch6.addConstraint(Sketcher.Constraint("Equal", 1, 2))
sketch6.addConstraint(Sketcher.Constraint("Equal", 2, 3))
sketch6.addConstraint(Sketcher.Constraint("Symmetric", 1, 3, 2, 3, -1))
sketch6.addConstraint(Sketcher.Constraint("Symmetric", 0, 3, 3, 3, -1))
sketch6.addConstraint(Sketcher.Constraint("Horizontal", 0, 3, 1, 3))
sketch6.addConstraint(Sketcher.Constraint("Diameter", 0, Q("3 mm")))
sketch6.addConstraint(Sketcher.Constraint("DistanceX", 1, 3, -1, 1, Q("45 mm")))
sketch6.addConstraint(Sketcher.Constraint("DistanceX", 0, 3, -1, 1, Q("68.8 mm")))
sketch6.addConstraint(Sketcher.Constraint("DistanceY", 1, 3, 2, 3, Q("23.5 mm")))
sketch6.setExpression("Constraints[6]", "Params.sketch6_diameter")
doc.recompute()
hole4 = body.newObject("PartDesign::Hole", "Hole003")
hole4.Profile = sketch6
hole4.ThreadType = "None"
hole4.setExpression("Diameter", "Params.hole4_diameter")
hole4.DepthType = "ThroughAll"
hole4.Reversed = True

doc.recompute()
